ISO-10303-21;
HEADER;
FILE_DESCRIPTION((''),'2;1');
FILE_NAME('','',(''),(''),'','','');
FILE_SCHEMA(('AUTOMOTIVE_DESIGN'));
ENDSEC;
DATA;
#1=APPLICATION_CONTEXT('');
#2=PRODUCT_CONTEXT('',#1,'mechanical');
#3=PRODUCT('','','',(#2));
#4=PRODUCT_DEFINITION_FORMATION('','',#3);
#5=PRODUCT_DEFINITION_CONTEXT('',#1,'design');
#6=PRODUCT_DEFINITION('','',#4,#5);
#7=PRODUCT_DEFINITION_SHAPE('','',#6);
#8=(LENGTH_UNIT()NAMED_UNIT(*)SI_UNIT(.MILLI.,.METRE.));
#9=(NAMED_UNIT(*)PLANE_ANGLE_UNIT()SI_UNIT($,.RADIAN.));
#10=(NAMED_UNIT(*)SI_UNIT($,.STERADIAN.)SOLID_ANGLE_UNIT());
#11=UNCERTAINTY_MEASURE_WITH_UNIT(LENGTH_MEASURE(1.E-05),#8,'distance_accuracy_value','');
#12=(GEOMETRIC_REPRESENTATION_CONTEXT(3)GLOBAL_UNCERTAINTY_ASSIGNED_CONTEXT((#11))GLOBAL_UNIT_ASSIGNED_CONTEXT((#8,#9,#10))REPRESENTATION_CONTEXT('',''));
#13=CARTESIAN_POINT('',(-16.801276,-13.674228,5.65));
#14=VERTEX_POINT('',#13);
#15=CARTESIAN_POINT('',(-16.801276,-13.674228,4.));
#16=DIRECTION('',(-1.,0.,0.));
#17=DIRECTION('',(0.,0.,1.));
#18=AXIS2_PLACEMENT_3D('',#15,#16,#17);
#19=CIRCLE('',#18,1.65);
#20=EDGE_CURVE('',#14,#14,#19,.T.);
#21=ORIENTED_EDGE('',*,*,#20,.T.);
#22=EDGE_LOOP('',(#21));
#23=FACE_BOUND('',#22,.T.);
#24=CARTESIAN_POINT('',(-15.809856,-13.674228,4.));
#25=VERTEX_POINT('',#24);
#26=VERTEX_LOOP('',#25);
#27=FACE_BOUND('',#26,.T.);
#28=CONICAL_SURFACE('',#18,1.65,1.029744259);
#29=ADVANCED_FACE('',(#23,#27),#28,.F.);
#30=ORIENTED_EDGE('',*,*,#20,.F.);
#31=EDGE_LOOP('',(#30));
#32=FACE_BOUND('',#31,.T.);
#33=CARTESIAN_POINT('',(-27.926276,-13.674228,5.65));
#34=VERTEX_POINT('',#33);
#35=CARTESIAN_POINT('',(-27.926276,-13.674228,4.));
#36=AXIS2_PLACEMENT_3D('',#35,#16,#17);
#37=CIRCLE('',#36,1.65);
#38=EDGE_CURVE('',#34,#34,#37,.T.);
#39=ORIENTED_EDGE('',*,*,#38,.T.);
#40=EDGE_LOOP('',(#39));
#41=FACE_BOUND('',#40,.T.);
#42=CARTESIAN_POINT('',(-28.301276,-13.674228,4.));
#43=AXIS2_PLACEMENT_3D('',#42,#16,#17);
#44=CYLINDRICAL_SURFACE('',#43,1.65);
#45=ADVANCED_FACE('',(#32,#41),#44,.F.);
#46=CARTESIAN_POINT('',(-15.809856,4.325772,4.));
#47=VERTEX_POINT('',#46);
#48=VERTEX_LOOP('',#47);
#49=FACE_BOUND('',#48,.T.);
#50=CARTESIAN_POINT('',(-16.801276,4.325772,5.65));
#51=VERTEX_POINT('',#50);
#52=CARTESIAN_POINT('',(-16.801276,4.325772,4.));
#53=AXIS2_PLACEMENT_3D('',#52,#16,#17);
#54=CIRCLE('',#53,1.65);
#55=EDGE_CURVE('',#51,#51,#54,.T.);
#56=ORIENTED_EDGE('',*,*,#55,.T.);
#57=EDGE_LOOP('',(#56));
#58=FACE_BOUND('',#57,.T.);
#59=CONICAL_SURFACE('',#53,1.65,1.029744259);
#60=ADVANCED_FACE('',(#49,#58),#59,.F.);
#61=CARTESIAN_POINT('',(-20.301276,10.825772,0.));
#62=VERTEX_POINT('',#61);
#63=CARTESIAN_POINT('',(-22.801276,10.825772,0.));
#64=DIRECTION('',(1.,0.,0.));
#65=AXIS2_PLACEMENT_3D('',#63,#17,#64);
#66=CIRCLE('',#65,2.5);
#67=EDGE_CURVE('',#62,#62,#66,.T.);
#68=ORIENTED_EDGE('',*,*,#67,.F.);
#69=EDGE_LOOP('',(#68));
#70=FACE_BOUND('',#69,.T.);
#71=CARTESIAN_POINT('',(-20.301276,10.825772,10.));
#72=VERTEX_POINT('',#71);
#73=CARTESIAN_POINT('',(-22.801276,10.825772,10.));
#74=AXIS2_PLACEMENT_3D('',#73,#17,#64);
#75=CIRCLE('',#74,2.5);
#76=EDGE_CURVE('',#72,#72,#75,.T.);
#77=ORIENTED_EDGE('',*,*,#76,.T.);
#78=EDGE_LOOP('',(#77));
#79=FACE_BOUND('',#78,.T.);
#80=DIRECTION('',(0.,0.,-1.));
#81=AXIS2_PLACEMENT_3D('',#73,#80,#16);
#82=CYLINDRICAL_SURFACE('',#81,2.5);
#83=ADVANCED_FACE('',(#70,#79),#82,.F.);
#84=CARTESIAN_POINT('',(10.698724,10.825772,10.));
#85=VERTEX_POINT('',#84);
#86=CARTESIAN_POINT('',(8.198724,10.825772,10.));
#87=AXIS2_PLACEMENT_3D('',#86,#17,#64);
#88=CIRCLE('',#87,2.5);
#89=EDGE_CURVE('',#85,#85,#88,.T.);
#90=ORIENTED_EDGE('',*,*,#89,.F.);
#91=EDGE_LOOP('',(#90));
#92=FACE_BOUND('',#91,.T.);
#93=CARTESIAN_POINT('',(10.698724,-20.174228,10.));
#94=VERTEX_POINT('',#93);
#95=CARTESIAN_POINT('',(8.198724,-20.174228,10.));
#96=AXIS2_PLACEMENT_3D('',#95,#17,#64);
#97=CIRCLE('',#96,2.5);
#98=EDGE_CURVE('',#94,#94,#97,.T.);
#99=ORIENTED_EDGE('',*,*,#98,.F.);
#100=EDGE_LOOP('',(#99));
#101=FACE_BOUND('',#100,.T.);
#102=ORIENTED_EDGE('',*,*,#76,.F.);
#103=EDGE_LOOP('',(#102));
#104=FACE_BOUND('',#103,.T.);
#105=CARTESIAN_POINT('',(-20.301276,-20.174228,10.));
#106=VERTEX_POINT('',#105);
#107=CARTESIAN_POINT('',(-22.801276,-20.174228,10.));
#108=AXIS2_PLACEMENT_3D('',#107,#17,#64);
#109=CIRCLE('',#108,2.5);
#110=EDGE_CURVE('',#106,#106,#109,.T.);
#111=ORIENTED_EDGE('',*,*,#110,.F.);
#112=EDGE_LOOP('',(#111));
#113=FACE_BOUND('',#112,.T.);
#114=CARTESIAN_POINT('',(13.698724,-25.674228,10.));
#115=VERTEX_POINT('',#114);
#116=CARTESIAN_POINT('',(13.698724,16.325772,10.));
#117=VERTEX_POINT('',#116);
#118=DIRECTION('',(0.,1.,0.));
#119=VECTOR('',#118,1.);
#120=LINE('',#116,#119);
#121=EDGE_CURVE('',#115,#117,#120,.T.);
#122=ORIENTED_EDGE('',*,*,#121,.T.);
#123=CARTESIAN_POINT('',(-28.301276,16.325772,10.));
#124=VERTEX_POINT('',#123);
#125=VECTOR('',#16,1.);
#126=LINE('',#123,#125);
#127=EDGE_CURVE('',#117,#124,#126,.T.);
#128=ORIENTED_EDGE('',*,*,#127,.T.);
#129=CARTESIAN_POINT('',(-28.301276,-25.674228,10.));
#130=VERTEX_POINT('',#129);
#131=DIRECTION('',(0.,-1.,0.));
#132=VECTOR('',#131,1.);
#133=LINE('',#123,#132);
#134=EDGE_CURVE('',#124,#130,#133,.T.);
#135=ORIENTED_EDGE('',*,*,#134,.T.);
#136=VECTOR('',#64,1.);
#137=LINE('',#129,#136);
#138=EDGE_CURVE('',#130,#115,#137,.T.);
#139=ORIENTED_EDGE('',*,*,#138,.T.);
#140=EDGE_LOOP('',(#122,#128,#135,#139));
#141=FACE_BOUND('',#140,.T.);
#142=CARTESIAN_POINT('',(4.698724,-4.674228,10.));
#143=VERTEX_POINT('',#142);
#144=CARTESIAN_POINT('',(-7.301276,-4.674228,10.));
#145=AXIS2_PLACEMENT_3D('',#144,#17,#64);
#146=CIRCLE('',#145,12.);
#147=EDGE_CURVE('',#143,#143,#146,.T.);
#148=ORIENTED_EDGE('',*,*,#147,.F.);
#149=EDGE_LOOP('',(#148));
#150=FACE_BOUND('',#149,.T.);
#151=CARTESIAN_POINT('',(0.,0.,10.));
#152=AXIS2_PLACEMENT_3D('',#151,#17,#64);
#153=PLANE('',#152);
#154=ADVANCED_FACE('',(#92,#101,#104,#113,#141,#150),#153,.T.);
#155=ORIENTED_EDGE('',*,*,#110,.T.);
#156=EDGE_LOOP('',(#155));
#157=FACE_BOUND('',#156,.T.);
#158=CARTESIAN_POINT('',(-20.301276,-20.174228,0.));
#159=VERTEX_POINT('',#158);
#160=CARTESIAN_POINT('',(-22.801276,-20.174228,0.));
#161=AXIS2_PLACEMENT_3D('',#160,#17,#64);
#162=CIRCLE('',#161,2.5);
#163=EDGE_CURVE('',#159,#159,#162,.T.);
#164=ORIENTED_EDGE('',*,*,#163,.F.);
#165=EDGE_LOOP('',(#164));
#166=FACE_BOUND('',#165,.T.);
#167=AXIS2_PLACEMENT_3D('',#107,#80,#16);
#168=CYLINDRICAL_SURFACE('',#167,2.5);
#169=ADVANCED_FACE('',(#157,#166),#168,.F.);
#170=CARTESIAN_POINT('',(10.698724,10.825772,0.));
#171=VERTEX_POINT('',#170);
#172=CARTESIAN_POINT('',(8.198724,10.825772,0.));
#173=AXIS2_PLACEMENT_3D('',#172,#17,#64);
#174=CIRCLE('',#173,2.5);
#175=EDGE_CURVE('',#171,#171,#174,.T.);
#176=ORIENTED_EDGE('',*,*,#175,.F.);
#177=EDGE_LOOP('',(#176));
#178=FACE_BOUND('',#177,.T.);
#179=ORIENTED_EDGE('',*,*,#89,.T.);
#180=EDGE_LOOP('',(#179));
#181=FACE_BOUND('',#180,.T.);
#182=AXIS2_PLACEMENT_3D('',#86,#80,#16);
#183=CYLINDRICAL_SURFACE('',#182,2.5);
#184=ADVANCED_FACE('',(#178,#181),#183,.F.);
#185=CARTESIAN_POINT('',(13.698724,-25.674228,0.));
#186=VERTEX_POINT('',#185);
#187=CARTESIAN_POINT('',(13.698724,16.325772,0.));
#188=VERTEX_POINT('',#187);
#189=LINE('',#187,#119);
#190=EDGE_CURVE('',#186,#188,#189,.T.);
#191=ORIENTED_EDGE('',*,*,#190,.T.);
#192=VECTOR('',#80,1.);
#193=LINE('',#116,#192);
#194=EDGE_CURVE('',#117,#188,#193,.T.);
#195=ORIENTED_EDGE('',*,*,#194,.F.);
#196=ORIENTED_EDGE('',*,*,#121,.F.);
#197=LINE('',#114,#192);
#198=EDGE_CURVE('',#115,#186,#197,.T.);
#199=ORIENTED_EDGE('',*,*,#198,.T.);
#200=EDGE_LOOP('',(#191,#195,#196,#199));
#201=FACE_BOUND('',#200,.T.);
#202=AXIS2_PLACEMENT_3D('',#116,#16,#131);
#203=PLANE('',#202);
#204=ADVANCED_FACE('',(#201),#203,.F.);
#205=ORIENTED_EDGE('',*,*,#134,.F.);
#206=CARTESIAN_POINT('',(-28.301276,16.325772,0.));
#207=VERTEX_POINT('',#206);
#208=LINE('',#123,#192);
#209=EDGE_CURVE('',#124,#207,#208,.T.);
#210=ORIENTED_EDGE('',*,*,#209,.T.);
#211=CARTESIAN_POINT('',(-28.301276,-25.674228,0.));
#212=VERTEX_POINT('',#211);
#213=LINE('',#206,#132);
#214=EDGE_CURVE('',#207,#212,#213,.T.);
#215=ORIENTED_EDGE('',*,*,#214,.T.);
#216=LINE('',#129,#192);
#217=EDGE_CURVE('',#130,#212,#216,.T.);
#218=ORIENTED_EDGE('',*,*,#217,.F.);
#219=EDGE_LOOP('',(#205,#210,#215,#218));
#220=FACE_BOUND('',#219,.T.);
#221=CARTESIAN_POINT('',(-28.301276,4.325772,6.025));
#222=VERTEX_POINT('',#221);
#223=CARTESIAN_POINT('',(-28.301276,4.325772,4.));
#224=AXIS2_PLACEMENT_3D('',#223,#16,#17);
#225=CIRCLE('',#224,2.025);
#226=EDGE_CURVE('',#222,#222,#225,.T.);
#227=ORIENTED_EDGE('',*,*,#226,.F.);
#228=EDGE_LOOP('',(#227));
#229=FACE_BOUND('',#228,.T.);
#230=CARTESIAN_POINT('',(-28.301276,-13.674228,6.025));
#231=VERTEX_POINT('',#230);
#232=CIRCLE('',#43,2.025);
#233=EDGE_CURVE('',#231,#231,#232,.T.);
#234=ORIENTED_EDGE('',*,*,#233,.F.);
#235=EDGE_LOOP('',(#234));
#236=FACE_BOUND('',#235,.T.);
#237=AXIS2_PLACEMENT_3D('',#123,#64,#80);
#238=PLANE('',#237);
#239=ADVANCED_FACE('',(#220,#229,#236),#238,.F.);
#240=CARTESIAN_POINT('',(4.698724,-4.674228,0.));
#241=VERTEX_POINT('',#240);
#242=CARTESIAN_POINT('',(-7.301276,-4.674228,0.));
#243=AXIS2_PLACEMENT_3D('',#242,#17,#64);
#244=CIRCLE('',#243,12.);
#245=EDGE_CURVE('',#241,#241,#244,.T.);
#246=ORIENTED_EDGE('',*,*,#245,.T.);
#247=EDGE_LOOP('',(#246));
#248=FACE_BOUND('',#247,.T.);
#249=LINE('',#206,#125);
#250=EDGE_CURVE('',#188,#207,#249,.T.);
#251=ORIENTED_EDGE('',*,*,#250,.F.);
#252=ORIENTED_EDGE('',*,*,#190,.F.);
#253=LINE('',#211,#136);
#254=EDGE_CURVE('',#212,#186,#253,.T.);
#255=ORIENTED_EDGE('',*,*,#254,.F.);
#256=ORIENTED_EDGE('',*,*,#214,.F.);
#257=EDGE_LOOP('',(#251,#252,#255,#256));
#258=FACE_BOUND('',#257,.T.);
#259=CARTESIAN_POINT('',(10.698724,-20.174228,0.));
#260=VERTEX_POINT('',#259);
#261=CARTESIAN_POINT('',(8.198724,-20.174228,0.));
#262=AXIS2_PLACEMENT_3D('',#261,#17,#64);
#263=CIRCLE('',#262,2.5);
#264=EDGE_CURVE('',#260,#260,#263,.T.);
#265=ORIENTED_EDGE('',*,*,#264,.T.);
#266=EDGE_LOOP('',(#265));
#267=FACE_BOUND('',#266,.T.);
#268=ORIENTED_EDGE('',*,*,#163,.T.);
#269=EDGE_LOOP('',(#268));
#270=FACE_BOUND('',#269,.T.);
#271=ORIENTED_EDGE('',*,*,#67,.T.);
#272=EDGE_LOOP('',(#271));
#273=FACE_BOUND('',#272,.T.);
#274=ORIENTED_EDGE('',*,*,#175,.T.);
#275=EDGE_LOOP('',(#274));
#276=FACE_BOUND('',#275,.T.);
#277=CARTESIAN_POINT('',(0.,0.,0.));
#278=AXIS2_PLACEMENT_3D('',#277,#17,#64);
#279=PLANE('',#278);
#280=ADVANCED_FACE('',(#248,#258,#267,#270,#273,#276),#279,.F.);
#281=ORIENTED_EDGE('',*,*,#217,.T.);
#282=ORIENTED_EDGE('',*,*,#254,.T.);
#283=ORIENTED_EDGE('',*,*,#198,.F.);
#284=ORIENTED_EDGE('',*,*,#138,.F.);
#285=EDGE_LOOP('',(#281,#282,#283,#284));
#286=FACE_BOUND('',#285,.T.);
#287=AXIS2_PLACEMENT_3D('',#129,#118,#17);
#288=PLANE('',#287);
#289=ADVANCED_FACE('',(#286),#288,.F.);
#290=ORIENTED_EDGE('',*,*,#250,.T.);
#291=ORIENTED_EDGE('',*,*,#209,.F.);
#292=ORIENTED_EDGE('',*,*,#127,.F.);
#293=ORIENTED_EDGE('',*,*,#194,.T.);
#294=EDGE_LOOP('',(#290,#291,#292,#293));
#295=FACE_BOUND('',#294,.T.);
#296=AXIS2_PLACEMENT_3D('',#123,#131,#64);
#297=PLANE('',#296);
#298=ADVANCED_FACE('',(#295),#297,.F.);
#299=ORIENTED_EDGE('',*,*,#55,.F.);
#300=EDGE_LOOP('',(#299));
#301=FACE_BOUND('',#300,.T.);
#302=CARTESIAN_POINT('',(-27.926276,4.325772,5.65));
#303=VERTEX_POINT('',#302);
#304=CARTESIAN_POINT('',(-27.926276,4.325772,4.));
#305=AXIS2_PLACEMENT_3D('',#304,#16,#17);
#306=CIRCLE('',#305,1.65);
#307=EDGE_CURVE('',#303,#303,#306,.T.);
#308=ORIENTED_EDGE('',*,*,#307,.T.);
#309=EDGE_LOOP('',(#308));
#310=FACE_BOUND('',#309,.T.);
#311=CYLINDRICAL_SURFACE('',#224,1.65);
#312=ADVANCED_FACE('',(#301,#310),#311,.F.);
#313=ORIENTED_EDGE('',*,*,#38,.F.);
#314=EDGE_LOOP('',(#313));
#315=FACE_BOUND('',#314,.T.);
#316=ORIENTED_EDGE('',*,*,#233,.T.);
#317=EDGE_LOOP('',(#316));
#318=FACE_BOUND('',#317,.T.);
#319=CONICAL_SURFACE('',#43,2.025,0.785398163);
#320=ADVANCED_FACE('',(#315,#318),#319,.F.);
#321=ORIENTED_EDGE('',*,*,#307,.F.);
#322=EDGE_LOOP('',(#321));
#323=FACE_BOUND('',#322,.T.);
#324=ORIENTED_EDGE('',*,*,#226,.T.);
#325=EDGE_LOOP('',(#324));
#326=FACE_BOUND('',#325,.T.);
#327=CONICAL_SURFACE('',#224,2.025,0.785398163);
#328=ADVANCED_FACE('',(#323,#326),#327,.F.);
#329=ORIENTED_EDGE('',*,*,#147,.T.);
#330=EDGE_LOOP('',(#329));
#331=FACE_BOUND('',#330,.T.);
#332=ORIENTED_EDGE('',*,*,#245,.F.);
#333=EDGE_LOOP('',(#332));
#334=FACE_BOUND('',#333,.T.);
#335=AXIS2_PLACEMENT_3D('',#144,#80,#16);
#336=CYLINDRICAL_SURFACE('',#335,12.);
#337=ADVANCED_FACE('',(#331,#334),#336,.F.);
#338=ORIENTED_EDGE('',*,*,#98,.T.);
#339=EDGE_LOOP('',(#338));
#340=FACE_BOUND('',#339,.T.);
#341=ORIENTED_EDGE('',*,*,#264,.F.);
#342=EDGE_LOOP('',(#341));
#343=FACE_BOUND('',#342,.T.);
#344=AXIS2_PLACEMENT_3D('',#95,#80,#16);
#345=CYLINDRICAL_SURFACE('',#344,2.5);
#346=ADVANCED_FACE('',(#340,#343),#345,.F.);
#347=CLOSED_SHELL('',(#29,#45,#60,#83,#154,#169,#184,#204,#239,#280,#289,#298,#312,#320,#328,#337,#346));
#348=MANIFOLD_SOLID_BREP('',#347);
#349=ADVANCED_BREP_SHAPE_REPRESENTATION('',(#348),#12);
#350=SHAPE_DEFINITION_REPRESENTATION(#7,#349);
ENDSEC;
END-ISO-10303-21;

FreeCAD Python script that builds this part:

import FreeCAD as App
import Part
import Sketcher

V = App.Vector

doc = App.newDocument("Part")
body = doc.addObject("PartDesign::Body", "Body")

sketch1 = doc.addObject("Sketcher::SketchObject", "Sketch")
body.addObject(sketch1)
sketch1.AttachmentSupport = (doc.XY_Plane, [""])
sketch1.MapMode = "FlatFace"
sketch1.addGeometry(Part.LineSegment(V(-28.3, 16.3, 0), V(-28.3, -25.7, 0)), False)
sketch1.addGeometry(Part.LineSegment(V(-28.3, -25.7, 0), V(13.7, -25.7, 0)), False)
sketch1.addGeometry(Part.LineSegment(V(13.7, -25.7, 0), V(13.7, 16.3, 0)), False)
sketch1.addGeometry(Part.LineSegment(V(13.7, 16.3, 0), V(-28.3, 16.3, 0)), False)
sketch1.addGeometry(Part.Circle(V(-22.8, -20.2, 0), V(0, 0, 1), 2.5), False)
sketch1.addGeometry(Part.Circle(V(8.2, -20.2, 0), V(0, 0, 1), 2.5), False)
sketch1.addGeometry(Part.Circle(V(-22.8, 10.8, 0), V(0, 0, 1), 2.5), False)
sketch1.addGeometry(Part.Circle(V(-7.3, -4.7, 0), V(0, 0, 1), 12), False)
sketch1.addGeometry(Part.Circle(V(8.2, 10.8, 0), V(0, 0, 1), 2.5), False)
sketch1.addConstraint(Sketcher.Constraint("Coincident", 0, 2, 1, 1))
sketch1.addConstraint(Sketcher.Constraint("Coincident", 1, 2, 2, 1))
sketch1.addConstraint(Sketcher.Constraint("Coincident", 2, 2, 3, 1))
sketch1.addConstraint(Sketcher.Constraint("Coincident", 3, 2, 0, 1))
sketch1.addConstraint(Sketcher.Constraint("Vertical", 0))
sketch1.addConstraint(Sketcher.Constraint("Horizontal", 1))
sketch1.addConstraint(Sketcher.Constraint("Vertical", 2))
sketch1.addConstraint(Sketcher.Constraint("Horizontal", 3))
sketch1.addConstraint(Sketcher.Constraint("Equal", 4, 5))
sketch1.addConstraint(Sketcher.Constraint("Equal", 5, 6))
sketch1.addConstraint(Sketcher.Constraint("Equal", 6, 8))
sketch1.addConstraint(Sketcher.Constraint("Horizontal", 4, 3, 5, 3))
sketch1.addConstraint(Sketcher.Constraint("Horizontal", 6, 3, 8, 3))
sketch1.addConstraint(Sketcher.Constraint("Vertical", 4, 3, 6, 3))
sketch1.addConstraint(Sketcher.Constraint("Vertical", 5, 3, 8, 3))
sketch1.addConstraint(Sketcher.Constraint("Equal", 3, 0))
sketch1.addConstraint(Sketcher.Constraint("Diameter", 4, 5.0))
sketch1.addConstraint(Sketcher.Constraint("Diameter", 7, 24.0))
sketch1.addConstraint(Sketcher.Constraint("DistanceX", 1, 1, 1, 2, 42.0))
sketch1.addConstraint(Sketcher.Constraint("DistanceX", 4, 3, 5, 3, 31.0))
sketch1.addConstraint(Sketcher.Constraint("DistanceY", 4, 3, 6, 3, 31.0))
sketch1.addConstraint(Sketcher.Constraint("DistanceX", 0, 2, 7, 3, 21.0))
sketch1.addConstraint(Sketcher.Constraint("DistanceY", 0, 2, 7, 3, 21.0))
sketch1.addConstraint(Sketcher.Constraint("DistanceX", 4, 3, 7, 3, 15.5))
sketch1.addConstraint(Sketcher.Constraint("DistanceY", 4, 3, 7, 3, 15.5))
sketch1.addConstraint(Sketcher.Constraint("DistanceY", 4, 3, -1, 1, 20.174228))
sketch1.addConstraint(Sketcher.Constraint("DistanceX", 4, 3, -1, 1, 22.801276))
pad1 = doc.addObject("PartDesign::Pad", "Pad")
body.addObject(pad1)
pad1.Profile = sketch1
pad1.Length = 10

sketch2 = doc.addObject("Sketcher::SketchObject", "Sketch001")
body.addObject(sketch2)
sketch2.AttachmentSupport = (doc.YZ_Plane, [""])
sketch2.MapMode = "FlatFace"
sketch2.AttachmentOffset = App.Placement(V(0, 0, -28.301276), App.Rotation())
sketch2.addGeometry(Part.Circle(V(4.3, 4, 0), V(0, 0, 1), 1), False)
sketch2.addGeometry(Part.Circle(V(-13.7, 4, 0), V(0, 0, 1), 1), False)
sketch2.addConstraint(Sketcher.Constraint("Equal", 0, 1))
sketch2.addConstraint(Sketcher.Constraint("Horizontal", 0, 3, 1, 3))
sketch2.addConstraint(Sketcher.Constraint("Diameter", 0, 2.0))
sketch2.addConstraint(Sketcher.Constraint("DistanceY", -1, 1, 0, 3, 4.0))
sketch2.addConstraint(Sketcher.Constraint("DistanceX", 1, 3, 0, 3, 18.0))
sketch2.addConstraint(Sketcher.Constraint("DistanceX", -1, 1, 0, 3, 4.325772))
pocket1 = doc.addObject("PartDesign::Pocket", "Pocket")
body.addObject(pocket1)
pocket1.Profile = sketch2
pocket1.Length = 8
pocket1.Reversed = True

sketch3 = doc.addObject("Sketcher::SketchObject", "Sketch002")
body.addObject(sketch3)
sketch3.AttachmentSupport = (doc.YZ_Plane, [""])
sketch3.MapMode = "FlatFace"
sketch3.AttachmentOffset = App.Placement(V(0, 0, -28.301276), App.Rotation())
sketch3.addGeometry(Part.Circle(V(4.3, 4, 0), V(0, 0, 1), 1.6), False)
sketch3.addGeometry(Part.Circle(V(-13.7, 4, 0), V(0, 0, 1), 1.6), False)
sketch3.addConstraint(Sketcher.Constraint("Equal", 0, 1))
sketch3.addConstraint(Sketcher.Constraint("Horizontal", 0, 3, 1, 3))
sketch3.addConstraint(Sketcher.Constraint("Diameter", 0, 3.3))
sketch3.addConstraint(Sketcher.Constraint("DistanceY", -1, 1, 0, 3, 4.0))
sketch3.addConstraint(Sketcher.Constraint("DistanceX", 1, 3, 0, 3, 18.0))
sketch3.addConstraint(Sketcher.Constraint("DistanceX", -1, 1, 0, 3, 4.325772))
doc.recompute()
hole = doc.addObject("PartDesign::Hole", "Hole")
body.addObject(hole)
hole.Profile = sketch3
hole.ThreadType = "None"
hole.Diameter = 3.3
hole.DepthType = "Dimension"
hole.Depth = 11.5
hole.DrillPoint = "Angled"
hole.DrillPointAngle = 118
hole.HoleCutType = "Countersink"
hole.HoleCutDiameter = 4.05
hole.HoleCutCountersinkAngle = 90
hole.Reversed = True

doc.recompute()
